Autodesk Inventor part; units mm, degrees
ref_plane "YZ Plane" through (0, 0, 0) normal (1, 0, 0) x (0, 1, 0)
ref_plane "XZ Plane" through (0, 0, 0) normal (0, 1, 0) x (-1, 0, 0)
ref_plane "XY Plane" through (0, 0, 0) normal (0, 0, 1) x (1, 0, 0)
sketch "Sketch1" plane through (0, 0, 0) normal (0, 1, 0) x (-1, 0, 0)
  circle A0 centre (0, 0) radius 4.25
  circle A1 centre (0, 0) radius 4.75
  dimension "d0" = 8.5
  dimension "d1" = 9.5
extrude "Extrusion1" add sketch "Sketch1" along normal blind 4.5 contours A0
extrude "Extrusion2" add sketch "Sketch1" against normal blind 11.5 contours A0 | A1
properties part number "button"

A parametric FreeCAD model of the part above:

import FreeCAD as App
import Part
import Sketcher
from FreeCAD import Vector

doc = App.newDocument("Part")
body = doc.addObject("PartDesign::Body", "Body")

# Sketch on XZ plane
sketch1 = doc.addObject("Sketcher::SketchObject", "Sketch")
body.addObject(sketch1)
sketch1.AttachmentSupport = (doc.XZ_Plane, [""])
sketch1.MapMode = "FlatFace"
sketch1.addGeometry(Part.Circle(Vector(0, 0, 0), Vector(0, 0, 1), 4.2), False)
sketch1.addConstraint(Sketcher.Constraint("Coincident", 0, 3, -1, 1))
sketch1.addConstraint(Sketcher.Constraint("Diameter", 0, 8.5))
pad1 = doc.addObject("PartDesign::Pad", "Pad")
body.addObject(pad1)
pad1.Profile = sketch1
pad1.Length = 4.5
pad1.Reversed = True

# Sketch on XZ plane
sketch2 = doc.addObject("Sketcher::SketchObject", "Sketch001")
body.addObject(sketch2)
sketch2.AttachmentSupport = (doc.XZ_Plane, [""])
sketch2.MapMode = "FlatFace"
sketch2.addGeometry(Part.Circle(Vector(0, 0, 0), Vector(0, 0, 1), 4.8), False)
sketch2.addConstraint(Sketcher.Constraint("Coincident", 0, 3, -1, 1))
sketch2.addConstraint(Sketcher.Constraint("Diameter", 0, 9.5))
pad2 = doc.addObject("PartDesign::Pad", "Pad001")
body.addObject(pad2)
pad2.Profile = sketch2
pad2.Length = 11.5

doc.recompute()
